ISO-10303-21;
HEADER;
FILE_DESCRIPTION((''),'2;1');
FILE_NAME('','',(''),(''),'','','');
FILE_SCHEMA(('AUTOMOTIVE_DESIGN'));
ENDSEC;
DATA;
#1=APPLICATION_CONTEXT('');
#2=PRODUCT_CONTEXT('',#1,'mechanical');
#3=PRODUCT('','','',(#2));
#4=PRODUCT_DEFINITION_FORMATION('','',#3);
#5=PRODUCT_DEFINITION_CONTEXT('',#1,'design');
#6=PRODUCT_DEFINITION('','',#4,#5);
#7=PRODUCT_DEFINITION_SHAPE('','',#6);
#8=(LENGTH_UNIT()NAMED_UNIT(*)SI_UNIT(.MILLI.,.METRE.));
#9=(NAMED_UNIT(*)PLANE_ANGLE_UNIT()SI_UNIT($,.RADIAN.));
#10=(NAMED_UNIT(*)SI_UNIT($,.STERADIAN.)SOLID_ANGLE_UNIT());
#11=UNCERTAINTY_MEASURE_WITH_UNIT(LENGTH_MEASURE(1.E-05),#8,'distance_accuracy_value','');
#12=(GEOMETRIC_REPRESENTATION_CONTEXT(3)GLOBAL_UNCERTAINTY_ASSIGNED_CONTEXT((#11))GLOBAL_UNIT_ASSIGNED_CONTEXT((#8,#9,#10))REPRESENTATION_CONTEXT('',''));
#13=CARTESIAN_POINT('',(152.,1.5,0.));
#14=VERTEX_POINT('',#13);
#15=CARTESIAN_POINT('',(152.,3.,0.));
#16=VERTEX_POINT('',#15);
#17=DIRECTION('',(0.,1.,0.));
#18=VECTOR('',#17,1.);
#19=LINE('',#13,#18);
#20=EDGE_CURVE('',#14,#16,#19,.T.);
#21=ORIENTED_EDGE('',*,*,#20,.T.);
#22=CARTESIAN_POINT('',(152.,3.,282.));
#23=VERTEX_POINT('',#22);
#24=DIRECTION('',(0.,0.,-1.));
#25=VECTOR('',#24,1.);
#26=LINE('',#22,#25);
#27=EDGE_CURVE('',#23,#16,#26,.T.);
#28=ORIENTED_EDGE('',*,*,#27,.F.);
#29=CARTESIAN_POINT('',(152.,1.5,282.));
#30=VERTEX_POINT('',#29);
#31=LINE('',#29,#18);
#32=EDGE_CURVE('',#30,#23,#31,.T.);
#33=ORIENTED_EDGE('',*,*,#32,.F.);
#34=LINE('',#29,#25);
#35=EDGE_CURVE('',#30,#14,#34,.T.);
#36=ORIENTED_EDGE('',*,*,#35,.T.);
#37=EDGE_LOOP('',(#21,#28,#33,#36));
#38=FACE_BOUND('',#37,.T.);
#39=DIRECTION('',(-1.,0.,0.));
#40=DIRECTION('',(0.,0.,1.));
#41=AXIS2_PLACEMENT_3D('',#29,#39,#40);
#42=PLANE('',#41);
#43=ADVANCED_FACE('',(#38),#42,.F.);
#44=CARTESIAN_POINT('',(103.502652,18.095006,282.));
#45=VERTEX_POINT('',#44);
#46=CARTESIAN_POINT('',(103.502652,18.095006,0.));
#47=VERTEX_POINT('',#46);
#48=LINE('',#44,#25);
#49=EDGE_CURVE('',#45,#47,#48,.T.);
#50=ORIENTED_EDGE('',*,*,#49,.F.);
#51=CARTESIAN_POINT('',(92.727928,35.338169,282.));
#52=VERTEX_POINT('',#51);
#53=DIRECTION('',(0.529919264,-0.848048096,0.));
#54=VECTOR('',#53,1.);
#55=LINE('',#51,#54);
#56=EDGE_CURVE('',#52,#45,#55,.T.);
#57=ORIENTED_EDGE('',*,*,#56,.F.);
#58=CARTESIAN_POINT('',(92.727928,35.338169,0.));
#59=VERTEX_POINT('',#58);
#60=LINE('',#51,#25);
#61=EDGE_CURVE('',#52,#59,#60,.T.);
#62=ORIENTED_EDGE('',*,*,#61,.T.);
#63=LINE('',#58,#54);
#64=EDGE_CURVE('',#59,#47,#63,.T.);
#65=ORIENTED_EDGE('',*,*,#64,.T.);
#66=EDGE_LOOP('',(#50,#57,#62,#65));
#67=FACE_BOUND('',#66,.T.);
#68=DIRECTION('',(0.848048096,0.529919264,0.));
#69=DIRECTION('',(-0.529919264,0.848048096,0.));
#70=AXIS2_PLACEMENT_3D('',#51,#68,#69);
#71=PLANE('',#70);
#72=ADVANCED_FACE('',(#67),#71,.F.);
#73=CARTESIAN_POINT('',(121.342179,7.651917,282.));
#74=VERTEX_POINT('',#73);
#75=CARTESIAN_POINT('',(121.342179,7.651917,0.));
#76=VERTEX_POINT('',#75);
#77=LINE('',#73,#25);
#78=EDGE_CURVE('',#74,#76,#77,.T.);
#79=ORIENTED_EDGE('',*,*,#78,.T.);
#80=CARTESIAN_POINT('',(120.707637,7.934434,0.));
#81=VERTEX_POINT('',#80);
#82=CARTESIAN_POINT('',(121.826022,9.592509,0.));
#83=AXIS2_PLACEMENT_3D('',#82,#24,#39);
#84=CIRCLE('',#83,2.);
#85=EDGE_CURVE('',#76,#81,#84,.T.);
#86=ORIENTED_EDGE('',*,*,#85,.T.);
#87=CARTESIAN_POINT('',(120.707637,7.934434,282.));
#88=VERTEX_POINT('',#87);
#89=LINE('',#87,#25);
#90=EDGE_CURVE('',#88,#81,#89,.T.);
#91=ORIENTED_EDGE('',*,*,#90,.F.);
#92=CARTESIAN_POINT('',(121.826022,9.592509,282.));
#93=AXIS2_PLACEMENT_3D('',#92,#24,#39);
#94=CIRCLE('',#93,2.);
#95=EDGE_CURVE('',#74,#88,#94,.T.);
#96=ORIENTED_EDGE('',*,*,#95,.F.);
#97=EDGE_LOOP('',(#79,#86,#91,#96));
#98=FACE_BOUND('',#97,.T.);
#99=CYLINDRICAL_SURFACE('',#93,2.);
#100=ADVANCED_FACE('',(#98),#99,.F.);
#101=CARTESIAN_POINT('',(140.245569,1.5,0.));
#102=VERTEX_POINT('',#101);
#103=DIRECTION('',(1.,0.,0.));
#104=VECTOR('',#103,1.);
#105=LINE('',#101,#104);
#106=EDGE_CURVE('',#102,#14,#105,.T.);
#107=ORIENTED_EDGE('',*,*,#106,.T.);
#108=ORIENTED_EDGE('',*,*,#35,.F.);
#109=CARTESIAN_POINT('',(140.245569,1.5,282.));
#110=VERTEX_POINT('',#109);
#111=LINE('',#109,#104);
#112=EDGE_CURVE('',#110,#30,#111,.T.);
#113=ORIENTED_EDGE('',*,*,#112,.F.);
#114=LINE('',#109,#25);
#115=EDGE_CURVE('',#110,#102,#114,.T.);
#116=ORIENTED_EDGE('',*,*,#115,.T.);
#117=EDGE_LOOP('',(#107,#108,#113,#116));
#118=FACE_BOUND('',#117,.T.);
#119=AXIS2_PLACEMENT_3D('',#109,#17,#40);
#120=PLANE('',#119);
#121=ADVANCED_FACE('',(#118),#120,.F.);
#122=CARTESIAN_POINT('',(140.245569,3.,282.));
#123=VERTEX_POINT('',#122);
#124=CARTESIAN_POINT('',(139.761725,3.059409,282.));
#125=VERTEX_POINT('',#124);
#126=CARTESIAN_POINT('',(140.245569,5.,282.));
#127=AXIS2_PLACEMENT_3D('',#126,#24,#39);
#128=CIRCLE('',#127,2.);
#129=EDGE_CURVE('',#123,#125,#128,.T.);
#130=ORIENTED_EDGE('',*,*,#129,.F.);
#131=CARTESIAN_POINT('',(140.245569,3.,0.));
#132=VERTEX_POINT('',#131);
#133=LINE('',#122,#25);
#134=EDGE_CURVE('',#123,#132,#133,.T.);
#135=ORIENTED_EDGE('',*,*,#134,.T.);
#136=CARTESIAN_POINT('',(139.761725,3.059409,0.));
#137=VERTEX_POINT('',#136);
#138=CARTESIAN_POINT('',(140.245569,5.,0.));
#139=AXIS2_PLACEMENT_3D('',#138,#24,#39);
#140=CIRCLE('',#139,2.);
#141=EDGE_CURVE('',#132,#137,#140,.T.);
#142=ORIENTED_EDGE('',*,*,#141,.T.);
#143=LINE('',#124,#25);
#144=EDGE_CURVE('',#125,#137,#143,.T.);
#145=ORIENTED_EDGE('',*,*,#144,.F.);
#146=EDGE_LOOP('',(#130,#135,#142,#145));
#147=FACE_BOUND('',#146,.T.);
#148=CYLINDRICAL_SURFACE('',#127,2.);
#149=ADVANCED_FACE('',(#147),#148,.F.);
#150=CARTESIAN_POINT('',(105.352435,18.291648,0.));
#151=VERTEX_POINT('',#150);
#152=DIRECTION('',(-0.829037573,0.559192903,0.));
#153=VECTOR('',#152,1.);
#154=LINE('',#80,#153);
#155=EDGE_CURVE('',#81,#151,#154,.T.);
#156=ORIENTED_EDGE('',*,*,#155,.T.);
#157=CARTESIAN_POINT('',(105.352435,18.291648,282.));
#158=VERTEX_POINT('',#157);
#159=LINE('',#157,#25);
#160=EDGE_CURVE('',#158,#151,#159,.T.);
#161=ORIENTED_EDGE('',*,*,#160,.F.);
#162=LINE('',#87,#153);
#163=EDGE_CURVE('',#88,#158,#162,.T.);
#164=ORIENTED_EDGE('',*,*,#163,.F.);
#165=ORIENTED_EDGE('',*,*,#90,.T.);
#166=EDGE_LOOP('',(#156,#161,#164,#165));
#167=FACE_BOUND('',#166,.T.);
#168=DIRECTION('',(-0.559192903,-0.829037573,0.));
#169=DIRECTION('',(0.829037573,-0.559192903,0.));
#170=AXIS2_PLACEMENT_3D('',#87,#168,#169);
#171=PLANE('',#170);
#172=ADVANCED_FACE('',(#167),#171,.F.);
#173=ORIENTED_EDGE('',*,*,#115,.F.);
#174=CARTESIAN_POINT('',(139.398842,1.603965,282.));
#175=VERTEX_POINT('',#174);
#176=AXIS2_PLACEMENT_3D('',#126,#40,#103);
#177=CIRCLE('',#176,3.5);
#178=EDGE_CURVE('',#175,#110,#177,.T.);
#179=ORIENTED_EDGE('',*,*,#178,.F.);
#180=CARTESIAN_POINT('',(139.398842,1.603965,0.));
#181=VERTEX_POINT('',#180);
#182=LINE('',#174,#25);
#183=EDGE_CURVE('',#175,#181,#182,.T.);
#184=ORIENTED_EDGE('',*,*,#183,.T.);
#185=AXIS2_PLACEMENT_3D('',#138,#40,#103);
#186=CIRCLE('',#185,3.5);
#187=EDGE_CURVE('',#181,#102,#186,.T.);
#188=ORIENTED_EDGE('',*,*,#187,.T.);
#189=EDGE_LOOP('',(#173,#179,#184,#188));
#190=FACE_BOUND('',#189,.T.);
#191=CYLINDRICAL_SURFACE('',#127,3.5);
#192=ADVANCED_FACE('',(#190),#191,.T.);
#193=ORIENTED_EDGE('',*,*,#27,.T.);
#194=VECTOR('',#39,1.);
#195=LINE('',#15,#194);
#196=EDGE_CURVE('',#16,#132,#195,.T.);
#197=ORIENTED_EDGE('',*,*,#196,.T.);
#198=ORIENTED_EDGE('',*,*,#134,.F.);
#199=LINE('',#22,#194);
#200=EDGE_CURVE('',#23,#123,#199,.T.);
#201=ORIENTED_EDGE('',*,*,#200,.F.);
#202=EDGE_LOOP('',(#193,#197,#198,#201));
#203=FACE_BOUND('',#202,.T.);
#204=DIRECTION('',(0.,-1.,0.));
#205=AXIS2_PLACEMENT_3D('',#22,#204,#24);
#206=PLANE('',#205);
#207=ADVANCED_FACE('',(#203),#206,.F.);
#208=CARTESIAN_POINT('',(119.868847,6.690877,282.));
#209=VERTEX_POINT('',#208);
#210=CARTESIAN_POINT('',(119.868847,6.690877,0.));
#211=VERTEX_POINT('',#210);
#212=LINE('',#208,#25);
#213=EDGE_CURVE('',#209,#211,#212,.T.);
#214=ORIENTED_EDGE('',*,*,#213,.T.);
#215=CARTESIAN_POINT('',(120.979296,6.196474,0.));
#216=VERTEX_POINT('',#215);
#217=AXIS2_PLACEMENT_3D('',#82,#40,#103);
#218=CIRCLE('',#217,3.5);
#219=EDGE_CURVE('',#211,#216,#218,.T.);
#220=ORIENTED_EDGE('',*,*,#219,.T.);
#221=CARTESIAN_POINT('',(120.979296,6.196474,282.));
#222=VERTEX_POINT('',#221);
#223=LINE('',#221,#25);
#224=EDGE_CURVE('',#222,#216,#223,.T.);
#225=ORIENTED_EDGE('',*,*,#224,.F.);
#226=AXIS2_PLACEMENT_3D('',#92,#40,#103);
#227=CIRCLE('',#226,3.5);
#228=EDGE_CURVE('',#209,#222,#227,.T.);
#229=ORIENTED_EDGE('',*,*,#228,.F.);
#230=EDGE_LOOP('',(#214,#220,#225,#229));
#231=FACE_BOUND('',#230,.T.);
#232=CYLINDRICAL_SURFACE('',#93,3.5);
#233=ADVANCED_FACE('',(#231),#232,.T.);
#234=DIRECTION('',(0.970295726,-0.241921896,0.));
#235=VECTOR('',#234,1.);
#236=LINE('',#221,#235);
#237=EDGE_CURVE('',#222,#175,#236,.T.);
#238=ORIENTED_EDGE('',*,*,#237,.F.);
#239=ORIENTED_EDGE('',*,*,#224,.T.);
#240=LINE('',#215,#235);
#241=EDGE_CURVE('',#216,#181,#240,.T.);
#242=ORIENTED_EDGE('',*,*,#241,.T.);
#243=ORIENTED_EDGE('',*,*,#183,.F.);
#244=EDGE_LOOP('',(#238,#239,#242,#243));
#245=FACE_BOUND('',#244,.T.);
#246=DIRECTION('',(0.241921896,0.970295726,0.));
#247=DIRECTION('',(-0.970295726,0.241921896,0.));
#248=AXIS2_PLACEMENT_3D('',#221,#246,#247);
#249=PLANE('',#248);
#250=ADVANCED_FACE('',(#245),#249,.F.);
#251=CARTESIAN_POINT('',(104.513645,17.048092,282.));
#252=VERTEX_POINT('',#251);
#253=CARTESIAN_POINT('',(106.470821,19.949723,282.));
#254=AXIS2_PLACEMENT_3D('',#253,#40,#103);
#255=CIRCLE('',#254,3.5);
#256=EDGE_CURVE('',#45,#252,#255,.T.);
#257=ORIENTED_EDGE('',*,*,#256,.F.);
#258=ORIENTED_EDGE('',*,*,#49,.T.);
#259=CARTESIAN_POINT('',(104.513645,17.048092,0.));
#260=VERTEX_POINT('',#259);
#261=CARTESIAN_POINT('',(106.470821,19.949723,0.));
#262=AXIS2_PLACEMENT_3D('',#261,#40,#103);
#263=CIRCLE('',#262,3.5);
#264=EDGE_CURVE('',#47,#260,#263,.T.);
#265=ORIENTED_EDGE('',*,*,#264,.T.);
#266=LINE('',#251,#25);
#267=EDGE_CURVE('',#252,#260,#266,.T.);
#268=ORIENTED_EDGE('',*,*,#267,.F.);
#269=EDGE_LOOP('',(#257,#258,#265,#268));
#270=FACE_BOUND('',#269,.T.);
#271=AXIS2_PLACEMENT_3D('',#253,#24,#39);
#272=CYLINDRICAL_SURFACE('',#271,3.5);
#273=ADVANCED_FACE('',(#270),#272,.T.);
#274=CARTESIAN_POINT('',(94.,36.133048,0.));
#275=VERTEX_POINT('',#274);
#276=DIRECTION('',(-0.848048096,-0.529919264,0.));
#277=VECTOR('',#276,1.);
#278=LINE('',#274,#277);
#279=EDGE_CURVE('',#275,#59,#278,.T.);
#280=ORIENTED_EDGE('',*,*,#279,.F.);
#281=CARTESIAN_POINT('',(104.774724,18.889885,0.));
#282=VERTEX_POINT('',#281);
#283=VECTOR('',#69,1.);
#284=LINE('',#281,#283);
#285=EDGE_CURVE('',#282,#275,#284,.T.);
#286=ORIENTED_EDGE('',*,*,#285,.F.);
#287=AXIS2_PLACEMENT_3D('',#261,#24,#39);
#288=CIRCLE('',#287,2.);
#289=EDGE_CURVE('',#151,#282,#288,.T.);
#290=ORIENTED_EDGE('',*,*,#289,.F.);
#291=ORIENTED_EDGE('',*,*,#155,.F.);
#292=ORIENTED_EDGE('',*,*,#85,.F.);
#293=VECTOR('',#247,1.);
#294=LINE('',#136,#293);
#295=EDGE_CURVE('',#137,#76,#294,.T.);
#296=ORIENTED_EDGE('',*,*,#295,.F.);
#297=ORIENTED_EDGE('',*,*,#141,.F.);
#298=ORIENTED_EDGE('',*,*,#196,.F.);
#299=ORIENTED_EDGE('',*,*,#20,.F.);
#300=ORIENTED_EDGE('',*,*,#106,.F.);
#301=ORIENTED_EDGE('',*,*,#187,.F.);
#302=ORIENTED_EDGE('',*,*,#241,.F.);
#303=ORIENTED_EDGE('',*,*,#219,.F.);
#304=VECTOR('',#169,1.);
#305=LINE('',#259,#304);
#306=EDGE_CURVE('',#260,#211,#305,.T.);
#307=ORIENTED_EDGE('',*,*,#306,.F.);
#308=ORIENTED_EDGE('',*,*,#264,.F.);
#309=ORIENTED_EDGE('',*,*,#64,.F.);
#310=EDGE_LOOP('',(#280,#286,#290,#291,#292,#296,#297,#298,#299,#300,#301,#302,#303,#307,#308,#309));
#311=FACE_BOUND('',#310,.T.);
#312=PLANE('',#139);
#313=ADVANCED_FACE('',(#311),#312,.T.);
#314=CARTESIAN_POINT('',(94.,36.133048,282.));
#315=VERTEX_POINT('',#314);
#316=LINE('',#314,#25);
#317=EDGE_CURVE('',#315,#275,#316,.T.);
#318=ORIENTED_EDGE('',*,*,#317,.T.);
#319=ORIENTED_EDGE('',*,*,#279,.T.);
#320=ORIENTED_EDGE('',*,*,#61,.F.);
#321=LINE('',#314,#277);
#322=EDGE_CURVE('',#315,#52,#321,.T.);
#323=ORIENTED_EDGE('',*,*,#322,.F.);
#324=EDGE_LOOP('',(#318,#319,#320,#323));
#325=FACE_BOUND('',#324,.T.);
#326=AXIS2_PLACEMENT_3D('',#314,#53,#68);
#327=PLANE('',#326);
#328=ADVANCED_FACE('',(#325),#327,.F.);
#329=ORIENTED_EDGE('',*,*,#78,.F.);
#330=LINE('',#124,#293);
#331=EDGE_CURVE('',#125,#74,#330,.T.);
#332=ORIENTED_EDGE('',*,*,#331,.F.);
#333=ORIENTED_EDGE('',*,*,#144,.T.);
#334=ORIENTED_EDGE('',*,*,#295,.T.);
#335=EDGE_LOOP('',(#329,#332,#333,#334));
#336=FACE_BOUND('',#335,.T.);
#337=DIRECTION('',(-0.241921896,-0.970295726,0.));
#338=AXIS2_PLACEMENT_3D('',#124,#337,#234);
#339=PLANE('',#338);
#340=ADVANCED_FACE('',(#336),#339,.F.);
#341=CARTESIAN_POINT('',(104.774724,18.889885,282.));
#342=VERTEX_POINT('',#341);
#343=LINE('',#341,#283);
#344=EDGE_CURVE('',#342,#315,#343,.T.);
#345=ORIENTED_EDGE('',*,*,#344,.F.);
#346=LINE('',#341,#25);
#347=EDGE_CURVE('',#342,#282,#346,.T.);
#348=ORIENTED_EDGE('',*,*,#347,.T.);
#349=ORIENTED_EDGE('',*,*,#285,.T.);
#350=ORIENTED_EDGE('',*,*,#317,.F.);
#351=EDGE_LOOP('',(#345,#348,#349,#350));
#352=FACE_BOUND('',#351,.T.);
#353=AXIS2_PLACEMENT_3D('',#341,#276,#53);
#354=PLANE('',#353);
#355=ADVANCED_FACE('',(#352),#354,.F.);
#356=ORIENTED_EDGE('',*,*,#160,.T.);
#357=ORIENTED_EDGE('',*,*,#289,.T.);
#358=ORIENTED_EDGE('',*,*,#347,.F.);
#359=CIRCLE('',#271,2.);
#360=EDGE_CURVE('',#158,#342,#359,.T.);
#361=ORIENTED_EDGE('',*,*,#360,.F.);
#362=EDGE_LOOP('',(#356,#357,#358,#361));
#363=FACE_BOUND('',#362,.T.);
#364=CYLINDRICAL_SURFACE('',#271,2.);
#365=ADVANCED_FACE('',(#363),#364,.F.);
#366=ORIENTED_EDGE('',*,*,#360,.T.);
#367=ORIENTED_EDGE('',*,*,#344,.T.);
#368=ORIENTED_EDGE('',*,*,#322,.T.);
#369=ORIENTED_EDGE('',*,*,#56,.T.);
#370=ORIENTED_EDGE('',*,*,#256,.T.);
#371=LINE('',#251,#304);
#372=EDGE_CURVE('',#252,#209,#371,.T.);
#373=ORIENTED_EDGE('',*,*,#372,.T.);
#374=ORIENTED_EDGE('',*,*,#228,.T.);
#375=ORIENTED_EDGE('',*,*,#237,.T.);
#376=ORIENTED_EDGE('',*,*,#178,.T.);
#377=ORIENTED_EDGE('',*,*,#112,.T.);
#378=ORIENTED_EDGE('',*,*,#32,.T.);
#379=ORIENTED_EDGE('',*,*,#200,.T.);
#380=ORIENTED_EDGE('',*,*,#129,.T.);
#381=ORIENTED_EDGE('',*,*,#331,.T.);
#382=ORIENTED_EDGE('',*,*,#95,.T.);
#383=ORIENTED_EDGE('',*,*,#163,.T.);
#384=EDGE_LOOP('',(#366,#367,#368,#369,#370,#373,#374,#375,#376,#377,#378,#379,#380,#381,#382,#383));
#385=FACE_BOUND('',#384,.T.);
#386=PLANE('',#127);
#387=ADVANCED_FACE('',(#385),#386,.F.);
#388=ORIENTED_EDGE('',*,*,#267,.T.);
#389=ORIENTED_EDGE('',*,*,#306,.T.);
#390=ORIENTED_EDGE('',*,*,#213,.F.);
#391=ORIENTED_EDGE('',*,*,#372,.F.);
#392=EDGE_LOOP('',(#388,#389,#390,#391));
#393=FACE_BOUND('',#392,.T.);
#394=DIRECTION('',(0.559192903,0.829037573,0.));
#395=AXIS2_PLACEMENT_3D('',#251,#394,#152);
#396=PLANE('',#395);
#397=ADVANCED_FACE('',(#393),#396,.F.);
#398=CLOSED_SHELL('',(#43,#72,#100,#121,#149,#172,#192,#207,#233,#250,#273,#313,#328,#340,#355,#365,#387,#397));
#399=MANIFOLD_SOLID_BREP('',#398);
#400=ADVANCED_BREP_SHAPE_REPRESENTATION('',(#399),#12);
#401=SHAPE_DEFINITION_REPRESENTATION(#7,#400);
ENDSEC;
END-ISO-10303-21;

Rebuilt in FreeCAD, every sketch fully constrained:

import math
import FreeCAD as App
import Part
import Sketcher

V = App.Vector
Q = App.Units.Quantity

doc = App.newDocument("Part")
body = doc.addObject("PartDesign::Body", "Body")

sketch1 = body.newObject("Sketcher::SketchObject", "Sketch")
sketch1.AttachmentSupport = (doc.getObject("XY_Plane"), [""])
sketch1.MapMode = "FlatFace"
sketch1.addGeometry(Part.LineSegment(V(152, 3, 0), V(140.25, 3, 0)), False)
sketch1.addGeometry(Part.ArcOfCircle(Part.Circle(V(140.25, 5, 0), V(0, 0, 1), 2), math.radians(-104), math.radians(-90)), False)
sketch1.addGeometry(Part.LineSegment(V(139.76, 3.06, 0), V(121.34, 7.65, 0)), False)
sketch1.addGeometry(Part.ArcOfCircle(Part.Circle(V(121.83, 9.59, 0), V(0, 0, 1), 2), math.radians(-124), math.radians(-104)), False)
sketch1.addGeometry(Part.LineSegment(V(120.71, 7.93, 0), V(105.35, 18.29, 0)), False)
sketch1.addGeometry(Part.ArcOfCircle(Part.Circle(V(106.47, 19.95, 0), V(0, 0, 1), 2), math.radians(-148), math.radians(-124)), False)
sketch1.addGeometry(Part.LineSegment(V(104.77, 18.89, 0), V(94, 36.13, 0)), False)
sketch1.addGeometry(Part.LineSegment(V(94, 36.13, 0), V(92.73, 35.34, 0)), False)
sketch1.addGeometry(Part.LineSegment(V(92.73, 35.34, 0), V(103.5, 18.1, 0)), False)
sketch1.addGeometry(Part.ArcOfCircle(Part.Circle(V(106.47, 19.95, 0), V(0, 0, 1), 3.5), math.radians(-148), math.radians(-124)), False)
sketch1.addGeometry(Part.LineSegment(V(104.51, 17.05, 0), V(119.87, 6.69, 0)), False)
sketch1.addGeometry(Part.ArcOfCircle(Part.Circle(V(121.83, 9.59, 0), V(0, 0, 1), 3.5), math.radians(-124), math.radians(-104)), False)
sketch1.addGeometry(Part.LineSegment(V(120.98, 6.2, 0), V(139.4, 1.6, 0)), False)
sketch1.addGeometry(Part.ArcOfCircle(Part.Circle(V(140.25, 5, 0), V(0, 0, 1), 3.5), math.radians(-104), math.radians(-90)), False)
sketch1.addGeometry(Part.LineSegment(V(140.25, 1.5, 0), V(152, 1.5, 0)), False)
sketch1.addGeometry(Part.LineSegment(V(152, 1.5, 0), V(152, 3, 0)), False)
sketch1.addConstraint(Sketcher.Constraint("Tangent", 0, 2, 1, 2))
sketch1.addConstraint(Sketcher.Constraint("Tangent", 1, 1, 2, 1))
sketch1.addConstraint(Sketcher.Constraint("Tangent", 2, 2, 3, 2))
sketch1.addConstraint(Sketcher.Constraint("Tangent", 3, 1, 4, 1))
sketch1.addConstraint(Sketcher.Constraint("Tangent", 4, 2, 5, 2))
sketch1.addConstraint(Sketcher.Constraint("Tangent", 5, 1, 6, 1))
sketch1.addConstraint(Sketcher.Constraint("Coincident", 6, 2, 7, 1))
sketch1.addConstraint(Sketcher.Constraint("Coincident", 7, 2, 8, 1))
sketch1.addConstraint(Sketcher.Constraint("Tangent", 8, 2, 9, 1))
sketch1.addConstraint(Sketcher.Constraint("Tangent", 9, 2, 10, 1))
sketch1.addConstraint(Sketcher.Constraint("Tangent", 10, 2, 11, 1))
sketch1.addConstraint(Sketcher.Constraint("Tangent", 11, 2, 12, 1))
sketch1.addConstraint(Sketcher.Constraint("Tangent", 12, 2, 13, 1))
sketch1.addConstraint(Sketcher.Constraint("Tangent", 13, 2, 14, 1))
sketch1.addConstraint(Sketcher.Constraint("Coincident", 14, 2, 15, 1))
sketch1.addConstraint(Sketcher.Constraint("Coincident", 15, 2, 0, 1))
sketch1.addConstraint(Sketcher.Constraint("Horizontal", 0))
sketch1.addConstraint(Sketcher.Constraint("Horizontal", 14))
sketch1.addConstraint(Sketcher.Constraint("Vertical", 15))
sketch1.addConstraint(Sketcher.Constraint("Coincident", 9, 3, 5, 3))
sketch1.addConstraint(Sketcher.Constraint("Coincident", 11, 3, 3, 3))
sketch1.addConstraint(Sketcher.Constraint("Coincident", 13, 3, 1, 3))
sketch1.addConstraint(Sketcher.Constraint("Equal", 1, 3))
sketch1.addConstraint(Sketcher.Constraint("Equal", 3, 5))
sketch1.addConstraint(Sketcher.Constraint("Equal", 9, 11))
sketch1.addConstraint(Sketcher.Constraint("Equal", 11, 13))
sketch1.addConstraint(Sketcher.Constraint("Perpendicular", 6, 7))
sketch1.addConstraint(Sketcher.Constraint("Perpendicular", 7, 8))
sketch1.addConstraint(Sketcher.Constraint("Radius", 1, 2.0))
sketch1.addConstraint(Sketcher.Constraint("Radius", 9, 3.5))
sketch1.addConstraint(Sketcher.Constraint("Angle", 2, Q("166 deg")))
sketch1.addConstraint(Sketcher.Constraint("Angle", 4, Q("146 deg")))
sketch1.addConstraint(Sketcher.Constraint("Angle", 6, Q("122 deg")))
sketch1.addConstraint(Sketcher.Constraint("DistanceY", -1, 1, 1, 3, 5.0))
sketch1.addConstraint(Sketcher.Constraint("DistanceX", -1, 1, 6, 2, 94.0))
sketch1.addConstraint(Sketcher.Constraint("DistanceX", -1, 1, 14, 2, 152.0))
sketch1.addConstraint(Sketcher.Constraint("DistanceX", 0, 2, 0, 1, 11.754431))
sketch1.addConstraint(Sketcher.Constraint("DistanceX", 5, 3, 3, 3, 15.355202))
sketch1.addConstraint(Sketcher.Constraint("DistanceY", 1, 1, 3, 3, 6.5331))
pad1 = body.newObject("PartDesign::Pad", "Pad")
pad1.Profile = sketch1
pad1.Length = 282

doc.recompute()
